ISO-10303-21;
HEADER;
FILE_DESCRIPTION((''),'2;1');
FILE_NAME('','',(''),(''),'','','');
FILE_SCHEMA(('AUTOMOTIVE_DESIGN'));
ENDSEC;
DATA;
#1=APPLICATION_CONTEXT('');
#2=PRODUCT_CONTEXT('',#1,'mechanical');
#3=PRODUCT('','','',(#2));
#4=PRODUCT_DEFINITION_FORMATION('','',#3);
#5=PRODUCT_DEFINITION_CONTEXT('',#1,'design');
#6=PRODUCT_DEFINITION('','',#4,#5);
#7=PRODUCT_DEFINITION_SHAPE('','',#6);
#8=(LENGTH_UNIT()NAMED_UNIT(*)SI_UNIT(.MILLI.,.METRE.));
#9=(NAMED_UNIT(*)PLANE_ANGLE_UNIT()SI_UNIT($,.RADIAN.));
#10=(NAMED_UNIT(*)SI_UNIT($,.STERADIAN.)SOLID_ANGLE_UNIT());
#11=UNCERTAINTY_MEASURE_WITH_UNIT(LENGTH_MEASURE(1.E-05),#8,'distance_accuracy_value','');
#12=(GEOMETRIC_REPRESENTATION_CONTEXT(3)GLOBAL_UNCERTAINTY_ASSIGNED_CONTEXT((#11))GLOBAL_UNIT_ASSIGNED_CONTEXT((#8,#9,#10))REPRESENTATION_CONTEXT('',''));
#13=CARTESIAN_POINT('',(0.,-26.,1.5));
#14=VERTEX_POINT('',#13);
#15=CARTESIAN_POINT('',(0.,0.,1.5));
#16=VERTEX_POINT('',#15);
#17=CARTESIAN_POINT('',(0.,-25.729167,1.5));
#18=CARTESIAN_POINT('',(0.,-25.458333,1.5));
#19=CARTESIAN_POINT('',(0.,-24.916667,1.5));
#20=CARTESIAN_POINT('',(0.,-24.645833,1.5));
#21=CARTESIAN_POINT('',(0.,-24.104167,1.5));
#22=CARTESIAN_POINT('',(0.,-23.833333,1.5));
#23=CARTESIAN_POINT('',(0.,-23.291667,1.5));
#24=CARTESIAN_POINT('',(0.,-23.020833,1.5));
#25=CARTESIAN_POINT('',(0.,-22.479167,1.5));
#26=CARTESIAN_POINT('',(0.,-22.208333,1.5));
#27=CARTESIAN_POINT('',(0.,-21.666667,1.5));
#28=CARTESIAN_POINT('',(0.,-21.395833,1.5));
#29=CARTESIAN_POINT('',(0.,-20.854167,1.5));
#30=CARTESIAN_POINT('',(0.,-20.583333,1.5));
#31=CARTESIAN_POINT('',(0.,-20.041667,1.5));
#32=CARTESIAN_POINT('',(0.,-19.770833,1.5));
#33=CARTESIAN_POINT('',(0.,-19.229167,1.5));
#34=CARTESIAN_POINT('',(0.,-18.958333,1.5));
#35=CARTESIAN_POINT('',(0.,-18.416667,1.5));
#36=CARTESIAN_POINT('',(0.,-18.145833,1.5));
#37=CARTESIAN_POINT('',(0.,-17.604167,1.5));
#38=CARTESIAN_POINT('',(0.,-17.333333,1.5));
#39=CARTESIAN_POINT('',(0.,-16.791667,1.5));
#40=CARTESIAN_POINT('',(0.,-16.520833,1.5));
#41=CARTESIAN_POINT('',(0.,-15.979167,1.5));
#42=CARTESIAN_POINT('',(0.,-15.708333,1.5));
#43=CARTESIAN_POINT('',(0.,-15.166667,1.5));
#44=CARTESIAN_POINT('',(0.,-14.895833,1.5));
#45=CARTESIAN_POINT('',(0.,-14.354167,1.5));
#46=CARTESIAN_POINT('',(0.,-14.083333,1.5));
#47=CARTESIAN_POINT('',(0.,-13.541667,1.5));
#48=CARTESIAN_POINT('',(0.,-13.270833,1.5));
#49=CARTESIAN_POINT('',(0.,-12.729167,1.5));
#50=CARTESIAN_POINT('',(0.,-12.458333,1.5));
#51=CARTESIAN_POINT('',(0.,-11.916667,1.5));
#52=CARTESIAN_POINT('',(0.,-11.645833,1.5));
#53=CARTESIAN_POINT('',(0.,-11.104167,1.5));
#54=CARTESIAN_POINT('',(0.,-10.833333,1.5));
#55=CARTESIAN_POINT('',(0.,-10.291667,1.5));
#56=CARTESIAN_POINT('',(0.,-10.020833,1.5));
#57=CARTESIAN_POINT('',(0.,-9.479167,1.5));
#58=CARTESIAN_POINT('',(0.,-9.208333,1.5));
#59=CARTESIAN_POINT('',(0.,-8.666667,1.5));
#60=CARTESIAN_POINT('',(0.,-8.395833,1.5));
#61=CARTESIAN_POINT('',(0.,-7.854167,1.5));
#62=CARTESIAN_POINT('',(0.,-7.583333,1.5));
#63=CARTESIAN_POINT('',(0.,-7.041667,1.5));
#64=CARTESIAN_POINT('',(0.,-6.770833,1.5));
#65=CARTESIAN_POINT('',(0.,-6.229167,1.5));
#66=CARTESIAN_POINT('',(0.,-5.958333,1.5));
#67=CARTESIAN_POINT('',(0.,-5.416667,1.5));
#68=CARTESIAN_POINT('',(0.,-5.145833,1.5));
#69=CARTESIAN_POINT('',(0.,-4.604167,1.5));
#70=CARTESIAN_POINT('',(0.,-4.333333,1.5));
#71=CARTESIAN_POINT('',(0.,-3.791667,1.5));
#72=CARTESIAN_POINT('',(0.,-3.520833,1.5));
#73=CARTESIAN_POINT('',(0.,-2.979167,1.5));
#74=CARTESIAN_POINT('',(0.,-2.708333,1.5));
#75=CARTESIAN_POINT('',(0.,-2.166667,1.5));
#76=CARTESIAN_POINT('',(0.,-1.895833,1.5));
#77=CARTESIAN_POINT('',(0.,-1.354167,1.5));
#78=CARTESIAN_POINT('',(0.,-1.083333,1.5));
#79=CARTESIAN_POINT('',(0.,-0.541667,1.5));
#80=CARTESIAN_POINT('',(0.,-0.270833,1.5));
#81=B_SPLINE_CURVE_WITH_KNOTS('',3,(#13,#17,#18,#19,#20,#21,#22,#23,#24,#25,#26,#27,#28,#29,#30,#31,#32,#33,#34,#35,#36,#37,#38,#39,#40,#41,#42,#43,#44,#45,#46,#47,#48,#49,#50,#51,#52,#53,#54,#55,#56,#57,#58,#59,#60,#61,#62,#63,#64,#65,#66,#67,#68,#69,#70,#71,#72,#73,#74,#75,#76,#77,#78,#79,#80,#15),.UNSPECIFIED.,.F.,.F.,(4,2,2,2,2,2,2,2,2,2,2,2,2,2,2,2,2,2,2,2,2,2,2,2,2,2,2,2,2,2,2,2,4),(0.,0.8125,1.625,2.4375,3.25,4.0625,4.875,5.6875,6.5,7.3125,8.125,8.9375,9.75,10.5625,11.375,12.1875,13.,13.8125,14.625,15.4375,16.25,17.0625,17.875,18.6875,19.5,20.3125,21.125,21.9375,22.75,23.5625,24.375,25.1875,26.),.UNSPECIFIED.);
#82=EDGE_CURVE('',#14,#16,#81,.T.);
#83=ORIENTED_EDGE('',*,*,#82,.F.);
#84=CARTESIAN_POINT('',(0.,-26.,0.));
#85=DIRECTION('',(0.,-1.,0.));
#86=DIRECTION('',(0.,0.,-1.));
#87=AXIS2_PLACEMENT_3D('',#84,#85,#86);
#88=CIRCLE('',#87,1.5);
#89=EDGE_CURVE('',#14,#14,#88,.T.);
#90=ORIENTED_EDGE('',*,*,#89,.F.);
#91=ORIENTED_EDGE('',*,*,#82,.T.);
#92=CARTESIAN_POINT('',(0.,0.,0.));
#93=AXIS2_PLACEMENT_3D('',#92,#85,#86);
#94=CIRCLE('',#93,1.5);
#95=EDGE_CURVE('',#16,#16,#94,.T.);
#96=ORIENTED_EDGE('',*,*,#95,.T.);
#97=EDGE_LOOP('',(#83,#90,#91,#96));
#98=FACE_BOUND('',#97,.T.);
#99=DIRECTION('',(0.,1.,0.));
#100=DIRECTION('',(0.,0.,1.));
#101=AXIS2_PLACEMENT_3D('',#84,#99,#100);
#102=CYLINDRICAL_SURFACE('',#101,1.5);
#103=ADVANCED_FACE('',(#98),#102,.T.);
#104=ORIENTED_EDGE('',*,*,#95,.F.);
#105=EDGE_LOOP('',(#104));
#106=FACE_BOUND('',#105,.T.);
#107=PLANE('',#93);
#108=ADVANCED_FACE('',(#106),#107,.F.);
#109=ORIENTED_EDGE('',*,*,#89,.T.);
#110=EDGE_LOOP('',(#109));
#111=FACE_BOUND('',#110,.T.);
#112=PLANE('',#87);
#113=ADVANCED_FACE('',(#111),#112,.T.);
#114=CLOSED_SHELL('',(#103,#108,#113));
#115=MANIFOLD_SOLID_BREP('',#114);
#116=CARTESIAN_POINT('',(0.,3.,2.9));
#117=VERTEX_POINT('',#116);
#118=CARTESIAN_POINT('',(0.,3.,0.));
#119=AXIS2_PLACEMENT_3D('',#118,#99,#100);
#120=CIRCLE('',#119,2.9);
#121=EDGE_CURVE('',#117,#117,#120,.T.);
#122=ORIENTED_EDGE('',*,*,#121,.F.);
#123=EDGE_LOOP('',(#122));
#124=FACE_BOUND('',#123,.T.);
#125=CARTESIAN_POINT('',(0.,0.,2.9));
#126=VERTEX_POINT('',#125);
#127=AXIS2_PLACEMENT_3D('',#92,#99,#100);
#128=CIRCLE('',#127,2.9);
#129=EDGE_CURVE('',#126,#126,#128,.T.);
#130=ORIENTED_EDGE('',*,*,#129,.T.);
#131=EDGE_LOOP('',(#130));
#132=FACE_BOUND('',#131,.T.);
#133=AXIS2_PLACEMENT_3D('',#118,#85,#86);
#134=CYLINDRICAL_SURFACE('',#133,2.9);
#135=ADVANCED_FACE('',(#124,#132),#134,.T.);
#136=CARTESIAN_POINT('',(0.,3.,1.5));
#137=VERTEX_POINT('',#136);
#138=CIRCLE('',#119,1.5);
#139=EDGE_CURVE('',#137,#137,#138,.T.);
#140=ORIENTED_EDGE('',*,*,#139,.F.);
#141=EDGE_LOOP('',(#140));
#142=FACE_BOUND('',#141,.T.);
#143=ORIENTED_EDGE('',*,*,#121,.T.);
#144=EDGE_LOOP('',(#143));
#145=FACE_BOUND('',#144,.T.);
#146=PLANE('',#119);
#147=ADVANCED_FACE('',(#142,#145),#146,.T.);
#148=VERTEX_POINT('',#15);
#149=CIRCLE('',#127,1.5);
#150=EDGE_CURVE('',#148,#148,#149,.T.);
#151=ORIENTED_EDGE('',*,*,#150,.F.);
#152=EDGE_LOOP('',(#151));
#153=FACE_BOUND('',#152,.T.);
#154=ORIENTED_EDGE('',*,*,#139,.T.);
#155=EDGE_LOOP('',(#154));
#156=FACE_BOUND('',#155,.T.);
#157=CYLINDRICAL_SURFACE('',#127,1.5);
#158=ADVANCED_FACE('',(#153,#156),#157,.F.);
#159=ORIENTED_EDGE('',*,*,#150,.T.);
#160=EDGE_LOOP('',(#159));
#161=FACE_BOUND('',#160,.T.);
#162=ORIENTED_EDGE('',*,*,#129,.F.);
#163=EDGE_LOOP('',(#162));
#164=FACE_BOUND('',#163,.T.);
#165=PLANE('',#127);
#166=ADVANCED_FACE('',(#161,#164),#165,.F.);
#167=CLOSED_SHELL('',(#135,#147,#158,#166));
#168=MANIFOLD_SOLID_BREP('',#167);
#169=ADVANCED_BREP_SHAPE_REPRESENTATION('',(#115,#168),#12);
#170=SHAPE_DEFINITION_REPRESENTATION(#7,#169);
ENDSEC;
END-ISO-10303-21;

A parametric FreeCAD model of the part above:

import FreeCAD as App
import Part
import Sketcher

V = App.Vector
Q = App.Units.Quantity

doc = App.newDocument("Part")
body = doc.addObject("PartDesign::Body", "Body")

# Sketch on XZ plane
sketch1 = body.newObject("Sketcher::SketchObject", "Sketch")
sketch1.AttachmentSupport = (doc.getObject("XZ_Plane"), [""])
sketch1.MapMode = "FlatFace"
sketch1.addGeometry(Part.Circle(V(0, 0, 0), V(0, 0, 1), 2.9), False)
sketch1.addConstraint([
    Sketcher.Constraint("Coincident", 0, 3, -1, 1),
    Sketcher.Constraint("Diameter", 0, Q("5.8 mm")),
])
pad1 = body.newObject("PartDesign::Pad", "Pad")
pad1.Profile = sketch1
pad1.Length = 3
pad1.Reversed = True

# Sketch on XZ plane
sketch2 = body.newObject("Sketcher::SketchObject", "Sketch001")
sketch2.AttachmentSupport = (doc.getObject("XZ_Plane"), [""])
sketch2.MapMode = "FlatFace"
sketch2.AttachmentOffset = App.Placement(V(0, 0, -3), App.Rotation())
sketch2.addGeometry(Part.Circle(V(0, 0, 0), V(0, 0, 1), 1.5), False)
sketch2.addConstraint([
    Sketcher.Constraint("Coincident", 0, 3, -1, 1),
    Sketcher.Constraint("Diameter", 0, Q("3 mm")),
])
pocket1 = body.newObject("PartDesign::Pocket", "Pocket")
pocket1.Profile = sketch2
pocket1.Length = 3
pocket1.Reversed = True
body2 = doc.addObject("PartDesign::Body", "Body001")

# Sketch on XZ plane
sketch3 = body2.newObject("Sketcher::SketchObject", "Sketch002")
sketch3.AttachmentSupport = (doc.getObject("XZ_Plane001"), [""])
sketch3.MapMode = "FlatFace"
sketch3.addGeometry(Part.Circle(V(0, 0, 0), V(0, 0, 1), 1.5), False)
sketch3.addConstraint([
    Sketcher.Constraint("Coincident", 0, 3, -1, 1),
    Sketcher.Constraint("Diameter", 0, Q("3 mm")),
])
pad2 = body2.newObject("PartDesign::Pad", "Pad001")
pad2.Profile = sketch3
pad2.Length = 26

doc.recompute()
